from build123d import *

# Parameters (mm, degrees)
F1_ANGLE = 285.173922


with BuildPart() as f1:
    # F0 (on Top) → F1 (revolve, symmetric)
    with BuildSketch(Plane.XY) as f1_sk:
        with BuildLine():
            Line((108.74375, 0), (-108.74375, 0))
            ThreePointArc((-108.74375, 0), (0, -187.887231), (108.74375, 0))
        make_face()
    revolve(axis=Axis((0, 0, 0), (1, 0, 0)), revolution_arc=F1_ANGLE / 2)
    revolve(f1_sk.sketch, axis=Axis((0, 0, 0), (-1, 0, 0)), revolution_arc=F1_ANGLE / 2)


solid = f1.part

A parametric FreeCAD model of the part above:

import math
import FreeCAD as App
import Part
import Sketcher

V = App.Vector
Q = App.Units.Quantity

doc = App.newDocument("Part")
body = doc.addObject("PartDesign::Body", "Body")

sketch1 = doc.addObject("Sketcher::SketchObject", "Sketch")
body.addObject(sketch1)
sketch1.AttachmentSupport = (doc.XY_Plane, [""])
sketch1.MapMode = "FlatFace"
sketch1.addGeometry(Part.LineSegment(V(108.74375, 0, 0), V(-108.74375, 0, 0)), False)
sketch1.addGeometry(Part.ArcOfCircle(Part.Circle(V(0, -62.474731, 0), V(0, 0, 1), 125.4125), math.radians(150.122059), math.radians(389.877941)), False)
sketch1.addConstraint(Sketcher.Constraint("Coincident", 0, 1, 1, 2))
sketch1.addConstraint(Sketcher.Constraint("Coincident", 1, 1, 0, 2))
sketch1.addConstraint(Sketcher.Constraint("Horizontal", 0))
sketch1.addConstraint(Sketcher.Constraint("Symmetric", 0, 1, 1, 1, -1, 1))
sketch1.addConstraint(Sketcher.Constraint("Radius", 1, Q("4.9375 in")))
sketch1.addConstraint(Sketcher.Constraint("DistanceX", 0, 2, 0, 1, Q("8.5625 in")))
revolution = doc.addObject("PartDesign::Revolution", "Revolution")
body.addObject(revolution)
revolution.Profile = sketch1
revolution.ReferenceAxis = (sketch1, ["H_Axis"])
revolution.Angle = 142.586961

sketch2 = doc.addObject("Sketcher::SketchObject", "Sketch001")
body.addObject(sketch2)
sketch2.AttachmentSupport = (doc.XY_Plane, [""])
sketch2.MapMode = "FlatFace"
sketch2.addGeometry(Part.LineSegment(V(108.74375, 0, 0), V(-108.74375, 0, 0)), False)
sketch2.addGeometry(Part.ArcOfCircle(Part.Circle(V(0, -62.474731, 0), V(0, 0, 1), 125.4125), math.radians(150.122059), math.radians(389.877941)), False)
sketch2.addConstraint(Sketcher.Constraint("Coincident", 0, 1, 1, 2))
sketch2.addConstraint(Sketcher.Constraint("Coincident", 1, 1, 0, 2))
sketch2.addConstraint(Sketcher.Constraint("Horizontal", 0))
sketch2.addConstraint(Sketcher.Constraint("Symmetric", 0, 1, 1, 1, -1, 1))
sketch2.addConstraint(Sketcher.Constraint("Radius", 1, Q("4.9375 in")))
sketch2.addConstraint(Sketcher.Constraint("DistanceX", 0, 2, 0, 1, Q("8.5625 in")))
revolution2 = doc.addObject("PartDesign::Revolution", "Revolution001")
body.addObject(revolution2)
revolution2.Profile = sketch2
revolution2.ReferenceAxis = (sketch2, ["H_Axis"])
revolution2.Angle = 142.586961
revolution2.Reversed = True

doc.recompute()
